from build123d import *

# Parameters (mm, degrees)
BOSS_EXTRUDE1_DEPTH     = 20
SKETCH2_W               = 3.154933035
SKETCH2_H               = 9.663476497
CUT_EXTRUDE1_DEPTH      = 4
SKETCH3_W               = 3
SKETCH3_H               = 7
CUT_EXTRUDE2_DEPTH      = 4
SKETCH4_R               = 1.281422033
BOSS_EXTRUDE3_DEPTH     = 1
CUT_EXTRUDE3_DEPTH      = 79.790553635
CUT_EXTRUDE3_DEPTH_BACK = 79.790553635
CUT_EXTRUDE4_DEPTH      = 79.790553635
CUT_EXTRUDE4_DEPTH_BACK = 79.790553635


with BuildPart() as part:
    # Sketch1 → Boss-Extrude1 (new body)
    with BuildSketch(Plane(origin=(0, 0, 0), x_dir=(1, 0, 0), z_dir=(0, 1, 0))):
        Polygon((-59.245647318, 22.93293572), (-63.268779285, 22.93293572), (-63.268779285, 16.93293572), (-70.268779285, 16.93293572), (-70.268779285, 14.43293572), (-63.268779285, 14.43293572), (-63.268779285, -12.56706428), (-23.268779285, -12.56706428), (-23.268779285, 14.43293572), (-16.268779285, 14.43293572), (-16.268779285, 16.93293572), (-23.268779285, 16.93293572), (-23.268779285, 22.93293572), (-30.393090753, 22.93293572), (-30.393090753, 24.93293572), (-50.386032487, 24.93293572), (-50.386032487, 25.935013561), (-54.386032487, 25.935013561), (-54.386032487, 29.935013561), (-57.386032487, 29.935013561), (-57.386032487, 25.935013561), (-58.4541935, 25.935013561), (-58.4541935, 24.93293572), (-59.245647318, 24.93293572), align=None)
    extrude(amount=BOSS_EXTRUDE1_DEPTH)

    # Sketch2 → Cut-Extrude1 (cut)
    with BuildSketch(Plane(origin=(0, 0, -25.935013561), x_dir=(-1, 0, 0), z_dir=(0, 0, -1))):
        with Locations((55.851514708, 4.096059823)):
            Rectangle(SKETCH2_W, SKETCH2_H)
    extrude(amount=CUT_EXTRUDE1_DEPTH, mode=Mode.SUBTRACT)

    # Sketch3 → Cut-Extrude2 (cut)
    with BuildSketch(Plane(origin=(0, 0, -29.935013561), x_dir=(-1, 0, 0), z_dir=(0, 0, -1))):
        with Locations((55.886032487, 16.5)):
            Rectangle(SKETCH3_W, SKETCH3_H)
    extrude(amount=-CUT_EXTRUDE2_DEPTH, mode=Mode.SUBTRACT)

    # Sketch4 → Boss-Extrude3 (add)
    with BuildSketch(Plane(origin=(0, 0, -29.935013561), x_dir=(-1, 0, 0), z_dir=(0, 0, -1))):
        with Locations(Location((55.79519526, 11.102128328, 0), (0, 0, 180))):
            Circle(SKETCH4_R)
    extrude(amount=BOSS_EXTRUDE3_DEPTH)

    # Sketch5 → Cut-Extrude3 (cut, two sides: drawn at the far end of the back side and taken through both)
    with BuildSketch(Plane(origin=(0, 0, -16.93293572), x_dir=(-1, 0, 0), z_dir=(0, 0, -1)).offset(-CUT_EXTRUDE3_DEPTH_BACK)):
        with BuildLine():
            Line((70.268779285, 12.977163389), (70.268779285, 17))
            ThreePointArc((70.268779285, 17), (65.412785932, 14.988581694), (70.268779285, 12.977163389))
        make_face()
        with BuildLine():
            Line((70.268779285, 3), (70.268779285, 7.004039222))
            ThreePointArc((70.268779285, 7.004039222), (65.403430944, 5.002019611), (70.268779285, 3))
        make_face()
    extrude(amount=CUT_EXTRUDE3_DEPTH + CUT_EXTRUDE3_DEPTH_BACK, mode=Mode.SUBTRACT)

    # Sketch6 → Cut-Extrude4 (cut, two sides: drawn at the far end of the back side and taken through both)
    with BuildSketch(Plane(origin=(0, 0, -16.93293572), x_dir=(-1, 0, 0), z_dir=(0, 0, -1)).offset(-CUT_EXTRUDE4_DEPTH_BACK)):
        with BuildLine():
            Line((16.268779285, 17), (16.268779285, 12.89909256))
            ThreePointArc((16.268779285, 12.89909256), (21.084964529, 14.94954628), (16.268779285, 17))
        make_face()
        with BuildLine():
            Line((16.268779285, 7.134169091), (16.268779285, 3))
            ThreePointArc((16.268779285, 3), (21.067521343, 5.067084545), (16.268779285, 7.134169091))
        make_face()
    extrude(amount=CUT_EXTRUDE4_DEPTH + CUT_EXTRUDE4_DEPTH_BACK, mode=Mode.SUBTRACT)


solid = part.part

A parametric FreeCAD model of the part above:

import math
import FreeCAD as App
import Part
import Sketcher

V = App.Vector
Q = App.Units.Quantity

doc = App.newDocument("Part")
params = doc.addObject("Spreadsheet::Sheet", "Params")
for row, (alias, value) in enumerate([
    ("sketch1_width", "7 mm"),
    ("sketch1_width2", "40 mm"),
    ("sketch1_width3", "4 mm"),
    ("sketch1_width4", "3 mm"),
    ("sketch1_height", "6 mm"),
    ("pad1_length", "20 mm"),
    ("pocket1_length", "4 mm"),
    ("sketch3_width", "3 mm"),
    ("sketch3_height", "7 mm"),
    ("pocket2_length", "4 mm"),
    ("pad2_length", "1 mm"),
], start=1):
    params.set(f"A{row}", alias)
    params.set(f"B{row}", "=" + value)
    params.setAlias(f"B{row}", alias)

body = doc.addObject("PartDesign::Body", "Body")

# Sketch on XZ plane
sketch1 = body.newObject("Sketcher::SketchObject", "Sketch")
sketch1.AttachmentSupport = (doc.getObject("XZ_Plane"), [""])
sketch1.MapMode = "FlatFace"
sketch1.addGeometry([
    Part.LineSegment(V(-59.2, -22.9, 0), V(-63.3, -22.9, 0)),  # 0
    Part.LineSegment(V(-63.3, -22.9, 0), V(-63.3, -16.9, 0)),  # 1
    Part.LineSegment(V(-63.3, -16.9, 0), V(-70.3, -16.9, 0)),  # 2
    Part.LineSegment(V(-70.3, -16.9, 0), V(-70.3, -14.4, 0)),  # 3
    Part.LineSegment(V(-70.3, -14.4, 0), V(-63.3, -14.4, 0)),  # 4
    Part.LineSegment(V(-63.3, -14.4, 0), V(-63.3, 12.6, 0)),  # 5
    Part.LineSegment(V(-63.3, 12.6, 0), V(-23.3, 12.6, 0)),  # 6
    Part.LineSegment(V(-23.3, 12.6, 0), V(-23.3, -14.4, 0)),  # 7
    Part.LineSegment(V(-23.3, -14.4, 0), V(-16.3, -14.4, 0)),  # 8
    Part.LineSegment(V(-16.3, -14.4, 0), V(-16.3, -16.9, 0)),  # 9
    Part.LineSegment(V(-16.3, -16.9, 0), V(-23.3, -16.9, 0)),  # 10
    Part.LineSegment(V(-23.3, -16.9, 0), V(-23.3, -22.9, 0)),  # 11
    Part.LineSegment(V(-23.3, -22.9, 0), V(-30.4, -22.9, 0)),  # 12
    Part.LineSegment(V(-30.4, -22.9, 0), V(-30.4, -24.9, 0)),  # 13
    Part.LineSegment(V(-30.4, -24.9, 0), V(-50.4, -24.9, 0)),  # 14
    Part.LineSegment(V(-50.4, -24.9, 0), V(-50.4, -25.9, 0)),  # 15
    Part.LineSegment(V(-50.4, -25.9, 0), V(-54.4, -25.9, 0)),  # 16
    Part.LineSegment(V(-54.4, -25.9, 0), V(-54.4, -29.9, 0)),  # 17
    Part.LineSegment(V(-54.4, -29.9, 0), V(-57.4, -29.9, 0)),  # 18
    Part.LineSegment(V(-57.4, -29.9, 0), V(-57.4, -25.9, 0)),  # 19
    Part.LineSegment(V(-57.4, -25.9, 0), V(-58.5, -25.9, 0)),  # 20
    Part.LineSegment(V(-58.5, -25.9, 0), V(-58.5, -24.9, 0)),  # 21
    Part.LineSegment(V(-58.5, -24.9, 0), V(-59.2, -24.9, 0)),  # 22
    Part.LineSegment(V(-59.2, -24.9, 0), V(-59.2, -22.9, 0)),  # 23
], False)
sketch1.addConstraint([
    Sketcher.Constraint("Coincident", 0, 2, 1, 1),
    Sketcher.Constraint("Coincident", 1, 2, 2, 1),
    Sketcher.Constraint("Coincident", 2, 2, 3, 1),
    Sketcher.Constraint("Coincident", 3, 2, 4, 1),
    Sketcher.Constraint("Coincident", 4, 2, 5, 1),
    Sketcher.Constraint("Coincident", 5, 2, 6, 1),
    Sketcher.Constraint("Coincident", 6, 2, 7, 1),
    Sketcher.Constraint("Coincident", 7, 2, 8, 1),
    Sketcher.Constraint("Coincident", 8, 2, 9, 1),
    Sketcher.Constraint("Coincident", 9, 2, 10, 1),
    Sketcher.Constraint("Coincident", 10, 2, 11, 1),
    Sketcher.Constraint("Coincident", 11, 2, 12, 1),
    Sketcher.Constraint("Coincident", 12, 2, 13, 1),
    Sketcher.Constraint("Coincident", 13, 2, 14, 1),
    Sketcher.Constraint("Coincident", 14, 2, 15, 1),
    Sketcher.Constraint("Coincident", 15, 2, 16, 1),
    Sketcher.Constraint("Coincident", 16, 2, 17, 1),
    Sketcher.Constraint("Coincident", 17, 2, 18, 1),
    Sketcher.Constraint("Coincident", 18, 2, 19, 1),
    Sketcher.Constraint("Coincident", 19, 2, 20, 1),
    Sketcher.Constraint("Coincident", 20, 2, 21, 1),
    Sketcher.Constraint("Coincident", 21, 2, 22, 1),
    Sketcher.Constraint("Coincident", 22, 2, 23, 1),
    Sketcher.Constraint("Coincident", 23, 2, 0, 1),
    Sketcher.Constraint("Horizontal", 0),
    Sketcher.Constraint("Vertical", 1),
    Sketcher.Constraint("Horizontal", 2),
    Sketcher.Constraint("Vertical", 3),
    Sketcher.Constraint("Horizontal", 4),
    Sketcher.Constraint("Vertical", 5),
    Sketcher.Constraint("Horizontal", 6),
    Sketcher.Constraint("Vertical", 7),
    Sketcher.Constraint("Horizontal", 8),
    Sketcher.Constraint("Vertical", 9),
    Sketcher.Constraint("Horizontal", 10),
    Sketcher.Constraint("Vertical", 11),
    Sketcher.Constraint("Horizontal", 12),
    Sketcher.Constraint("Vertical", 13),
    Sketcher.Constraint("Horizontal", 14),
    Sketcher.Constraint("Vertical", 15),
    Sketcher.Constraint("Horizontal", 16),
    Sketcher.Constraint("Vertical", 17),
    Sketcher.Constraint("Horizontal", 18),
    Sketcher.Constraint("Vertical", 19),
    Sketcher.Constraint("Horizontal", 20),
    Sketcher.Constraint("Vertical", 21),
    Sketcher.Constraint("Horizontal", 22),
    Sketcher.Constraint("Vertical", 23),
    Sketcher.Constraint("Horizontal", 4, 2, 7, 2),
    Sketcher.Constraint("Horizontal", 2, 2, 9, 2),
    Sketcher.Constraint("Horizontal", 0, 2, 11, 2),
    Sketcher.Constraint("Horizontal", 16, 2, 19, 2),
    Sketcher.Constraint("Horizontal", 14, 2, 21, 2),
    Sketcher.Constraint("Vertical", 1, 2, 4, 2),
    Sketcher.Constraint("Vertical", 7, 2, 10, 2),
    Sketcher.Constraint("Equal", 4, 8),
    Sketcher.Constraint("Equal", 16, 17),
    Sketcher.Constraint("DistanceX", 2, 2, 2, 1, Q("7 mm")),
    Sketcher.Constraint("DistanceX", 6, 1, 6, 2, Q("40 mm")),
    Sketcher.Constraint("DistanceX", 16, 2, 16, 1, Q("4 mm")),
    Sketcher.Constraint("DistanceX", 18, 2, 18, 1, Q("3 mm")),
    Sketcher.Constraint("DistanceY", 1, 1, 1, 2, Q("6 mm")),
    Sketcher.Constraint("DistanceY", 5, 1, 5, 2, Q("27 mm")),
    Sketcher.Constraint("DistanceY", 13, 2, 13, 1, Q("2 mm")),
    Sketcher.Constraint("DistanceY", 3, 1, 3, 2, Q("2.5 mm")),
    Sketcher.Constraint("DistanceX", 0, 2, 0, 1, Q("4.023132 mm")),
    Sketcher.Constraint("DistanceX", 12, 2, 12, 1, Q("7.124311 mm")),
    Sketcher.Constraint("DistanceX", 14, 2, 14, 1, Q("19.992942 mm")),
    Sketcher.Constraint("DistanceX", 20, 2, 20, 1, Q("1.068161 mm")),
    Sketcher.Constraint("DistanceY", 15, 2, 15, 1, Q("1.002078 mm")),
    Sketcher.Constraint("DistanceX", 0, 2, -1, 1, Q("63.268779 mm")),
    Sketcher.Constraint("DistanceY", 0, 2, -1, 1, Q("22.932936 mm")),
])
sketch1.setExpression("Constraints[57]", "Params.sketch1_width")
sketch1.setExpression("Constraints[58]", "Params.sketch1_width2")
sketch1.setExpression("Constraints[59]", "Params.sketch1_width3")
sketch1.setExpression("Constraints[60]", "Params.sketch1_width4")
sketch1.setExpression("Constraints[61]", "Params.sketch1_height")
pad1 = body.newObject("PartDesign::Pad", "Pad")
pad1.Profile = sketch1
pad1.setExpression("Length", "Params.pad1_length")
pad1.Reversed = True

# Sketch on XY plane
sketch2 = body.newObject("Sketcher::SketchObject", "Sketch001")
sketch2.AttachmentSupport = (doc.getObject("XY_Plane"), [""])
sketch2.MapMode = "FlatFace"
sketch2.AttachmentOffset = App.Placement(V(0, 0, -25.935014), App.Rotation())
sketch2.addGeometry([
    Part.LineSegment(V(-54.3, 8.9, 0), V(-54.3, -0.7, 0)),
    Part.LineSegment(V(-54.3, -0.7, 0), V(-57.4, -0.7, 0)),
    Part.LineSegment(V(-57.4, -0.7, 0), V(-57.4, 8.9, 0)),
    Part.LineSegment(V(-57.4, 8.9, 0), V(-54.3, 8.9, 0)),
], False)
sketch2.addConstraint([
    Sketcher.Constraint("Coincident", 0, 2, 1, 1),
    Sketcher.Constraint("Coincident", 1, 2, 2, 1),
    Sketcher.Constraint("Coincident", 2, 2, 3, 1),
    Sketcher.Constraint("Coincident", 3, 2, 0, 1),
    Sketcher.Constraint("Vertical", 0),
    Sketcher.Constraint("Horizontal", 1),
    Sketcher.Constraint("Vertical", 2),
    Sketcher.Constraint("Horizontal", 3),
    Sketcher.Constraint("DistanceY", -1, 1, 2, 2, Q("8.927798 mm")),
    Sketcher.Constraint("DistanceX", 1, 2, 1, 1, Q("3.154933 mm")),
    Sketcher.Constraint("DistanceY", 0, 2, 0, 1, Q("9.663476 mm")),
    Sketcher.Constraint("DistanceX", 0, 2, -1, 1, Q("54.274048 mm")),
])
pocket1 = body.newObject("PartDesign::Pocket", "Pocket")
pocket1.Profile = sketch2
pocket1.setExpression("Length", "Params.pocket1_length")

# Sketch on XY plane
sketch3 = body.newObject("Sketcher::SketchObject", "Sketch002")
sketch3.AttachmentSupport = (doc.getObject("XY_Plane"), [""])
sketch3.MapMode = "FlatFace"
sketch3.AttachmentOffset = App.Placement(V(0, 0, -29.935014), App.Rotation())
sketch3.addGeometry([
    Part.LineSegment(V(-54.4, 20, 0), V(-54.4, 13, 0)),
    Part.LineSegment(V(-54.4, 13, 0), V(-57.4, 13, 0)),
    Part.LineSegment(V(-57.4, 13, 0), V(-57.4, 20, 0)),
    Part.LineSegment(V(-57.4, 20, 0), V(-54.4, 20, 0)),
], False)
sketch3.addConstraint([
    Sketcher.Constraint("Coincident", 0, 2, 1, 1),
    Sketcher.Constraint("Coincident", 1, 2, 2, 1),
    Sketcher.Constraint("Coincident", 2, 2, 3, 1),
    Sketcher.Constraint("Coincident", 3, 2, 0, 1),
    Sketcher.Constraint("Vertical", 0),
    Sketcher.Constraint("Horizontal", 1),
    Sketcher.Constraint("Vertical", 2),
    Sketcher.Constraint("Horizontal", 3),
    Sketcher.Constraint("DistanceX", 1, 2, 1, 1, Q("3 mm")),
    Sketcher.Constraint("DistanceY", 0, 2, 0, 1, Q("7 mm")),
    Sketcher.Constraint("DistanceY", -1, 1, 0, 2, Q("13 mm")),
    Sketcher.Constraint("DistanceX", 0, 2, -1, 1, Q("54.386032 mm")),
])
sketch3.setExpression("Constraints[8]", "Params.sketch3_width")
sketch3.setExpression("Constraints[9]", "Params.sketch3_height")
pocket2 = body.newObject("PartDesign::Pocket", "Pocket001")
pocket2.Profile = sketch3
pocket2.setExpression("Length", "Params.pocket2_length")
pocket2.Reversed = True

# Sketch on XY plane
sketch4 = body.newObject("Sketcher::SketchObject", "Sketch003")
sketch4.AttachmentSupport = (doc.getObject("XY_Plane"), [""])
sketch4.MapMode = "FlatFace"
sketch4.AttachmentOffset = App.Placement(V(0, 0, -29.935014), App.Rotation())
sketch4.addGeometry(Part.Circle(V(-55.8, 11.1, 0), V(0, 0, 1), 1.3), False)
sketch4.addConstraint([
    Sketcher.Constraint("Diameter", 0, Q("2.562844 mm")),
    Sketcher.Constraint("DistanceY", -1, 1, 0, 3, Q("11.102128 mm")),
    Sketcher.Constraint("DistanceX", 0, 3, -1, 1, Q("55.795195 mm")),
])
pad2 = body.newObject("PartDesign::Pad", "Pad001")
pad2.Profile = sketch4
pad2.setExpression("Length", "Params.pad2_length")
pad2.Reversed = True

# Sketch on XY plane
sketch5 = body.newObject("Sketcher::SketchObject", "Sketch004")
sketch5.AttachmentSupport = (doc.getObject("XY_Plane"), [""])
sketch5.MapMode = "FlatFace"
sketch5.AttachmentOffset = App.Placement(V(0, 0, -16.932936), App.Rotation())
sketch5.addGeometry([
    Part.LineSegment(V(-70.3, 13, 0), V(-70.3, 17, 0)),
    Part.ArcOfCircle(Part.Circle(V(-68.3, 15, 0), V(0, 0, 1), 2.8), math.radians(-135), math.radians(135)),
    Part.LineSegment(V(-70.3, 3, 0), V(-70.3, 7, 0)),
    Part.ArcOfCircle(Part.Circle(V(-68.2, 5, 0), V(0, 0, 1), 2.8), math.radians(-135), math.radians(135)),
], False)
sketch5.addConstraint([
    Sketcher.Constraint("Coincident", 0, 1, 1, 1),
    Sketcher.Constraint("Coincident", 1, 2, 0, 2),
    Sketcher.Constraint("Coincident", 2, 1, 3, 1),
    Sketcher.Constraint("Coincident", 3, 2, 2, 2),
    Sketcher.Constraint("Vertical", 0),
    Sketcher.Constraint("Vertical", 2),
    Sketcher.Constraint("Equal", 1, 3),
    Sketcher.Constraint("Vertical", 1, 2, 2, 1),
    Sketcher.Constraint("DistanceY", -1, 1, 1, 2, Q("17 mm")),
    Sketcher.Constraint("DistanceY", -1, 1, 2, 1, Q("3 mm")),
    Sketcher.Constraint("Radius", 1, Q("2.844575 mm")),
    Sketcher.Constraint("DistanceY", 2, 1, 2, 2, Q("4.004039 mm")),
    Sketcher.Constraint("DistanceY", 0, 1, 0, 2, Q("4.022837 mm")),
    Sketcher.Constraint("DistanceX", 1, 3, -1, 1, Q("68.257361 mm")),
])
pocket3 = body.newObject("PartDesign::Pocket", "Pocket002")
pocket3.Profile = sketch5
pocket3.Type = "ThroughAll"
pocket3.Midplane = True

# Sketch on XY plane
sketch6 = body.newObject("Sketcher::SketchObject", "Sketch005")
sketch6.AttachmentSupport = (doc.getObject("XY_Plane"), [""])
sketch6.MapMode = "FlatFace"
sketch6.AttachmentOffset = App.Placement(V(0, 0, -16.932936), App.Rotation())
sketch6.addGeometry([
    Part.LineSegment(V(-16.3, 17, 0), V(-16.3, 12.9, 0)),
    Part.ArcOfCircle(Part.Circle(V(-18.2, 14.9, 0), V(0, 0, 1), 2.8), math.radians(46), math.radians(314)),
    Part.LineSegment(V(-16.3, 7.1, 0), V(-16.3, 3, 0)),
    Part.ArcOfCircle(Part.Circle(V(-18.2, 5.1, 0), V(0, 0, 1), 2.8), math.radians(47), math.radians(313)),
], False)
sketch6.addConstraint([
    Sketcher.Constraint("Coincident", 0, 1, 1, 1),
    Sketcher.Constraint("Coincident", 1, 2, 0, 2),
    Sketcher.Constraint("Coincident", 2, 1, 3, 1),
    Sketcher.Constraint("Coincident", 3, 2, 2, 2),
    Sketcher.Constraint("Vertical", 0),
    Sketcher.Constraint("Vertical", 2),
    Sketcher.Constraint("Equal", 1, 3),
    Sketcher.Constraint("Vertical", 1, 2, 2, 1),
    Sketcher.Constraint("DistanceY", -1, 1, 0, 1, Q("17 mm")),
    Sketcher.Constraint("DistanceY", -1, 1, 3, 2, Q("3 mm")),
    Sketcher.Constraint("Radius", 1, Q("2.844575 mm")),
    Sketcher.Constraint("DistanceY", 2, 2, 2, 1, Q("4.134169 mm")),
    Sketcher.Constraint("DistanceY", 0, 2, 0, 1, Q("4.100907 mm")),
    Sketcher.Constraint("DistanceX", 1, 3, -1, 1, Q("18.240389 mm")),
])
pocket4 = body.newObject("PartDesign::Pocket", "Pocket003")
pocket4.Profile = sketch6
pocket4.Type = "ThroughAll"
pocket4.Midplane = True

doc.recompute()
